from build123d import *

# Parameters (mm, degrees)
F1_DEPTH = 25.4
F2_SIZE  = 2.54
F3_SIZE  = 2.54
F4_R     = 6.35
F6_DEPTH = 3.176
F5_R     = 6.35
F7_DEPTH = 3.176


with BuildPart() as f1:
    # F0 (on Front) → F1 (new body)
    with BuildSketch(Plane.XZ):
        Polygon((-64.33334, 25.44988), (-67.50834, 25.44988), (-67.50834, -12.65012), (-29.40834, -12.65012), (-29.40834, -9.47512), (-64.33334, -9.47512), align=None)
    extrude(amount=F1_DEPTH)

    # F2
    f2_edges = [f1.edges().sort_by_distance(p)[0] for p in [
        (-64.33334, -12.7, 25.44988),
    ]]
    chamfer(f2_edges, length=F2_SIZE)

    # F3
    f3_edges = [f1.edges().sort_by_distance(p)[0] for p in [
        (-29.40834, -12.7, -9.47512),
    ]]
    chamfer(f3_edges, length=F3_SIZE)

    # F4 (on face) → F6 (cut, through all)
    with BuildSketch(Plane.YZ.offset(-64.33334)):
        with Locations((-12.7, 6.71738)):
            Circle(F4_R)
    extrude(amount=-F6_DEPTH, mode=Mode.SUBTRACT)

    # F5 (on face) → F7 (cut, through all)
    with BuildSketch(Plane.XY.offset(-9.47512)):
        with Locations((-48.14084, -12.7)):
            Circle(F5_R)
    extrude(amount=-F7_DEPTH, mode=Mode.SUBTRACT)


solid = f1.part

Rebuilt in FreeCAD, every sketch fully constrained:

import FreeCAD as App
import Part
import Sketcher
Q = App.Units.Quantity


def edges_at(feature, points):
    """Names of the edges that pass closest to the given points."""
    edges = feature.Shape.Edges
    near = lambda p: min(range(len(edges)), key=lambda i: edges[i].distToShape(Part.Vertex(*p))[0])
    return sorted({f"Edge{near(p) + 1}" for p in points})

doc = App.newDocument("Part")
params = doc.addObject("Spreadsheet::Sheet", "Params")
for row, (alias, value) in enumerate([
    ("sketch1_width", "1.5 in"),
    ("sketch1_width2", "0.125 in"),
    ("pad1_length", "1 in"),
    ("chamfer_size", "0.1 in"),
    ("chamfer2_size", "0.1 in"),
    ("sketch2_diameter", "0.5 in"),
    ("sketch3_diameter", "0.5 in"),
], start=1):
    params.set(f"A{row}", alias)
    params.set(f"B{row}", "=" + value)
    params.setAlias(f"B{row}", alias)

body = doc.addObject("PartDesign::Body", "Body")

# Sketch on XZ plane
sketch1 = body.newObject("Sketcher::SketchObject", "Sketch")
sketch1.AttachmentSupport = (doc.getObject("XZ_Plane"), [""])
sketch1.MapMode = "FlatFace"
sketch1.addGeometry([
    Part.LineSegment(App.Vector(-64.3, 25.4, 0), App.Vector(-67.5, 25.4, 0)),  # 0
    Part.LineSegment(App.Vector(-67.5, 25.4, 0), App.Vector(-67.5, -12.7, 0)),  # 1
    Part.LineSegment(App.Vector(-67.5, -12.7, 0), App.Vector(-29.4, -12.7, 0)),  # 2
    Part.LineSegment(App.Vector(-29.4, -12.7, 0), App.Vector(-29.4, -9.5, 0)),  # 3
    Part.LineSegment(App.Vector(-29.4, -9.5, 0), App.Vector(-64.3, -9.5, 0)),  # 4
    Part.LineSegment(App.Vector(-64.3, -9.5, 0), App.Vector(-64.3, 25.4, 0)),  # 5
], False)
sketch1.addConstraint([
    Sketcher.Constraint("Coincident", 0, 2, 1, 1),
    Sketcher.Constraint("Coincident", 1, 2, 2, 1),
    Sketcher.Constraint("Coincident", 2, 2, 3, 1),
    Sketcher.Constraint("Coincident", 3, 2, 4, 1),
    Sketcher.Constraint("Coincident", 4, 2, 5, 1),
    Sketcher.Constraint("Coincident", 5, 2, 0, 1),
    Sketcher.Constraint("Horizontal", 0),
    Sketcher.Constraint("Vertical", 1),
    Sketcher.Constraint("Horizontal", 2),
    Sketcher.Constraint("Vertical", 3),
    Sketcher.Constraint("Horizontal", 4),
    Sketcher.Constraint("Vertical", 5),
    Sketcher.Constraint("Equal", 2, 1),
    Sketcher.Constraint("Equal", 0, 3),
    Sketcher.Constraint("DistanceX", 2, 1, 2, 2, Q("1.5 in")),
    Sketcher.Constraint("DistanceX", 0, 2, 0, 1, Q("0.125 in")),
    Sketcher.Constraint("DistanceX", 0, 2, -1, 1, Q("67.50834 mm")),
    Sketcher.Constraint("DistanceY", -1, 1, 0, 2, Q("25.44988 mm")),
])
sketch1.setExpression("Constraints[14]", "Params.sketch1_width")
sketch1.setExpression("Constraints[15]", "Params.sketch1_width2")
pad1 = body.newObject("PartDesign::Pad", "Pad")
pad1.Profile = sketch1
pad1.setExpression("Length", "Params.pad1_length")
doc.recompute()

chamfer = body.newObject("PartDesign::Chamfer", "Chamfer")
chamfer.Base = (pad1, edges_at(pad1, [(-64.333, -12.7, 25.45)]))
chamfer.setExpression("Size", "Params.chamfer_size")
doc.recompute()

chamfer2 = body.newObject("PartDesign::Chamfer", "Chamfer001")
chamfer2.Base = (chamfer, edges_at(chamfer, [(-29.408, -12.7, -9.475)]))
chamfer2.setExpression("Size", "Params.chamfer2_size")

# Sketch on YZ plane
sketch2 = body.newObject("Sketcher::SketchObject", "Sketch001")
sketch2.AttachmentSupport = (doc.getObject("YZ_Plane"), [""])
sketch2.MapMode = "FlatFace"
sketch2.AttachmentOffset = App.Placement(App.Vector(0, 0, -64.33334), App.Rotation())
sketch2.addGeometry(Part.Circle(App.Vector(-13, 7, 0), App.Vector(0, 0, 1), 6), False)
sketch2.addConstraint([
    Sketcher.Constraint("Diameter", 0, Q("0.5 in")),
    Sketcher.Constraint("DistanceX", 0, 3, -1, 1, Q("0.5 in")),
    Sketcher.Constraint("DistanceY", -1, 1, 0, 3, Q("6.71738 mm")),
])
sketch2.setExpression("Constraints[0]", "Params.sketch2_diameter")
pocket1 = body.newObject("PartDesign::Pocket", "Pocket")
pocket1.Profile = sketch2
pocket1.Type = "ThroughAll"

# Sketch on XY plane
sketch3 = body.newObject("Sketcher::SketchObject", "Sketch002")
sketch3.AttachmentSupport = (doc.getObject("XY_Plane"), [""])
sketch3.MapMode = "FlatFace"
sketch3.AttachmentOffset = App.Placement(App.Vector(0, 0, -9.47512), App.Rotation())
sketch3.addGeometry(Part.Circle(App.Vector(-48, -13, 0), App.Vector(0, 0, 1), 6), False)
sketch3.addConstraint([
    Sketcher.Constraint("Diameter", 0, Q("0.5 in")),
    Sketcher.Constraint("DistanceY", 0, 3, -1, 1, Q("0.5 in")),
    Sketcher.Constraint("DistanceX", 0, 3, -1, 1, Q("48.14084 mm")),
])
sketch3.setExpression("Constraints[0]", "Params.sketch3_diameter")
pocket2 = body.newObject("PartDesign::Pocket", "Pocket001")
pocket2.Profile = sketch3
pocket2.Type = "ThroughAll"

doc.recompute()
